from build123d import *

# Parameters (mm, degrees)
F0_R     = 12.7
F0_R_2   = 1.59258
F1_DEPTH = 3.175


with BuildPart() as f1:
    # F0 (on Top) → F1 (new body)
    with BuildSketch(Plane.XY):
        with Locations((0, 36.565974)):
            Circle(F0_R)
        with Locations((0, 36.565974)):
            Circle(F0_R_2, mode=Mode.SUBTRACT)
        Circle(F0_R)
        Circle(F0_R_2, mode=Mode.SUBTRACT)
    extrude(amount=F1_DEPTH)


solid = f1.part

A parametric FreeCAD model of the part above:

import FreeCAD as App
import Part
import Sketcher
from FreeCAD import Vector
Q = App.Units.Quantity

doc = App.newDocument("Part")
body = doc.addObject("PartDesign::Body", "Body")
body.AllowCompound = True

sketch1 = doc.addObject("Sketcher::SketchObject", "Sketch")
body.addObject(sketch1)
sketch1.AttachmentSupport = (doc.XY_Plane, [""])
sketch1.MapMode = "FlatFace"
sketch1.addGeometry([
    Part.Circle(Vector(0, 36.6, 0), Vector(0, 0, 1), 12.7),
    Part.Circle(Vector(0, 36.6, 0), Vector(0, 0, 1), 1.6),
    Part.Circle(Vector(0, 0, 0), Vector(0, 0, 1), 12.7),
    Part.Circle(Vector(0, 0, 0), Vector(0, 0, 1), 1.6),
], False)
sketch1.addConstraint([
    Sketcher.Constraint("Coincident", 2, 3, -1, 1),
    Sketcher.Constraint("Coincident", 3, 3, -1, 1),
    Sketcher.Constraint("Coincident", 1, 3, 0, 3),
    Sketcher.Constraint("Equal", 0, 2),
    Sketcher.Constraint("Equal", 1, 3),
    Sketcher.Constraint("PointOnObject", 0, 3, -2),
    Sketcher.Constraint("Diameter", 0, Q("1 in")),
    Sketcher.Constraint("Diameter", 1, Q("0.1254 in")),
    Sketcher.Constraint("DistanceY", -1, 1, 0, 3, Q("36.565974 mm")),
])
pad1 = doc.addObject("PartDesign::Pad", "Pad")
body.addObject(pad1)
pad1.Profile = sketch1
pad1.Length = Q("0.125 in")

doc.recompute()
